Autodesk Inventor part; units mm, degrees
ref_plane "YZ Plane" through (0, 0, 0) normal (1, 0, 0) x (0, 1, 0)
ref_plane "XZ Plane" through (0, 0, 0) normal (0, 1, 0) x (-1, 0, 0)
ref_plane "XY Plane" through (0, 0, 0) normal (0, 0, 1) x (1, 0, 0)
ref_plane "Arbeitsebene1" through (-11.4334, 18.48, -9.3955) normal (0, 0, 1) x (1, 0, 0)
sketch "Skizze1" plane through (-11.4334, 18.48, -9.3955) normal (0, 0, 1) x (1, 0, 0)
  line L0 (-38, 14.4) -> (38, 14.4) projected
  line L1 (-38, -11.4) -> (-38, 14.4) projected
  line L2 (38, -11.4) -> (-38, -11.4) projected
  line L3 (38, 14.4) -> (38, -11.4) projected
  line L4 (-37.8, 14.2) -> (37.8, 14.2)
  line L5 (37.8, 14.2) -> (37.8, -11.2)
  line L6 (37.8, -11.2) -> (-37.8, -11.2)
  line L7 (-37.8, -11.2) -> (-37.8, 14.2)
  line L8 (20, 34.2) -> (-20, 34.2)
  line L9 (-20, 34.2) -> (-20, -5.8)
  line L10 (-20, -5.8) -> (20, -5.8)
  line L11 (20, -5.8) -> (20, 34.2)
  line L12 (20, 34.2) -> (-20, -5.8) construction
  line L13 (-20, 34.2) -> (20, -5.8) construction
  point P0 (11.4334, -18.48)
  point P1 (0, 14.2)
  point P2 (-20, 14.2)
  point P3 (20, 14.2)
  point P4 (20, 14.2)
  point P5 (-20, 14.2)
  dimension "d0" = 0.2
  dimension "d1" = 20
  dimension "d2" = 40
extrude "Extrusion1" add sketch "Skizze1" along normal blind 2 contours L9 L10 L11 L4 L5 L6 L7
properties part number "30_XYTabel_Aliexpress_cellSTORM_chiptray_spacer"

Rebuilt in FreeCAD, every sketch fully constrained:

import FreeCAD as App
import Part
import Sketcher
Q = App.Units.Quantity


def add_polygon(sketch, points):
    """Adds a closed chain of lines whose ends are joined by coincident constraints."""
    first, n = sketch.GeometryCount, len(points)
    for a, b in zip(points, points[1:] + points[:1]):
        sketch.addGeometry(Part.LineSegment(App.Vector(*a, 0), App.Vector(*b, 0)), False)
    for i in range(n):
        sketch.addConstraint(Sketcher.Constraint("Coincident", first + i, 2, first + (i + 1) % n, 1))

doc = App.newDocument("Part")
body = doc.addObject("PartDesign::Body", "Body")

# Sketch on XY plane
sketch1 = doc.addObject("Sketcher::SketchObject", "Sketch")
body.addObject(sketch1)
sketch1.AttachmentSupport = (doc.XY_Plane, [""])
sketch1.MapMode = "FlatFace"
sketch1.AttachmentOffset = App.Placement(App.Vector(0, 0, -9.3955), App.Rotation())
add_polygon(sketch1, [(-31, 13), (-31, 33), (-49, 33), (-49, 7), (26, 7), (26, 33), (9, 33), (9, 13)])  # lines 0-7
sketch1.addConstraint([
    Sketcher.Constraint("Vertical", 0),
    Sketcher.Constraint("Horizontal", 1),
    Sketcher.Constraint("Vertical", 2),
    Sketcher.Constraint("Horizontal", 3),
    Sketcher.Constraint("Vertical", 4),
    Sketcher.Constraint("Horizontal", 5),
    Sketcher.Constraint("Vertical", 6),
    Sketcher.Constraint("Horizontal", 7),
    Sketcher.Constraint("Horizontal", 1, 2, 4, 2),
    Sketcher.Constraint("Equal", 1, 5),
    Sketcher.Constraint("DistanceX", 7, 2, 7, 1, Q("40 mm")),
    Sketcher.Constraint("DistanceY", 0, 1, 0, 2, Q("20 mm")),
    Sketcher.Constraint("DistanceX", 1, 2, 1, 1, Q("17.8 mm")),
    Sketcher.Constraint("DistanceY", 2, 2, 2, 1, Q("25.4 mm")),
    Sketcher.Constraint("DistanceY", -1, 1, 0, 2, Q("32.68 mm")),
    Sketcher.Constraint("DistanceX", 0, 2, -1, 1, Q("31.4334 mm")),
])
pad1 = doc.addObject("PartDesign::Pad", "Pad")
body.addObject(pad1)
pad1.Profile = sketch1
pad1.Length = 2

doc.recompute()
